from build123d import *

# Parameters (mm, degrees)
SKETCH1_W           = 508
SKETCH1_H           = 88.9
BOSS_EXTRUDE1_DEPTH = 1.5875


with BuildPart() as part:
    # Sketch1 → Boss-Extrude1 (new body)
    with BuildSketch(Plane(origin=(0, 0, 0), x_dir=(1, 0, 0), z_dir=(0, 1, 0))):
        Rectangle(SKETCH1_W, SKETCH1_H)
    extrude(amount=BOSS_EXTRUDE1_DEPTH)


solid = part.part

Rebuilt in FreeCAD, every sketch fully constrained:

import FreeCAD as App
import Part
import Sketcher

V = App.Vector
Q = App.Units.Quantity


def add_polygon(sketch, points):
    """Adds a closed chain of lines whose ends are joined by coincident constraints."""
    first, n = sketch.GeometryCount, len(points)
    for a, b in zip(points, points[1:] + points[:1]):
        sketch.addGeometry(Part.LineSegment(App.Vector(*a, 0), App.Vector(*b, 0)), False)
    for i in range(n):
        sketch.addConstraint(Sketcher.Constraint("Coincident", first + i, 2, first + (i + 1) % n, 1))

doc = App.newDocument("Part")
params = doc.addObject("Spreadsheet::Sheet", "Params")
for row, (alias, value) in enumerate([
    ("sketch1_width", "20 in"),
    ("sketch1_height", "3.5 in"),
    ("pad1_length", "0.0625 in"),
], start=1):
    params.set(f"A{row}", alias)
    params.set(f"B{row}", "=" + value)
    params.setAlias(f"B{row}", alias)

body = doc.addObject("PartDesign::Body", "Body")

sketch1 = body.newObject("Sketcher::SketchObject", "Sketch")
sketch1.AttachmentSupport = (doc.getObject("XZ_Plane"), [""])
sketch1.MapMode = "FlatFace"
add_polygon(sketch1, [(-254, -44), (-254, 44), (254, 44), (254, -44)])
sketch1.addConstraint(Sketcher.Constraint("Vertical", 0))
sketch1.addConstraint(Sketcher.Constraint("Horizontal", 1))
sketch1.addConstraint(Sketcher.Constraint("Vertical", 2))
sketch1.addConstraint(Sketcher.Constraint("Horizontal", 3))
sketch1.addConstraint(Sketcher.Constraint("Symmetric", 0, 2, 2, 2, -1, 1))
sketch1.addConstraint(Sketcher.Constraint("DistanceX", 1, 1, 1, 2, Q("20 in")))
sketch1.addConstraint(Sketcher.Constraint("DistanceY", 0, 1, 0, 2, Q("3.5 in")))
sketch1.setExpression("Constraints[9]", "Params.sketch1_width")
sketch1.setExpression("Constraints[10]", "Params.sketch1_height")
pad1 = body.newObject("PartDesign::Pad", "Pad")
pad1.Profile = sketch1
pad1.setExpression("Length", "Params.pad1_length")
pad1.Reversed = True

doc.recompute()
